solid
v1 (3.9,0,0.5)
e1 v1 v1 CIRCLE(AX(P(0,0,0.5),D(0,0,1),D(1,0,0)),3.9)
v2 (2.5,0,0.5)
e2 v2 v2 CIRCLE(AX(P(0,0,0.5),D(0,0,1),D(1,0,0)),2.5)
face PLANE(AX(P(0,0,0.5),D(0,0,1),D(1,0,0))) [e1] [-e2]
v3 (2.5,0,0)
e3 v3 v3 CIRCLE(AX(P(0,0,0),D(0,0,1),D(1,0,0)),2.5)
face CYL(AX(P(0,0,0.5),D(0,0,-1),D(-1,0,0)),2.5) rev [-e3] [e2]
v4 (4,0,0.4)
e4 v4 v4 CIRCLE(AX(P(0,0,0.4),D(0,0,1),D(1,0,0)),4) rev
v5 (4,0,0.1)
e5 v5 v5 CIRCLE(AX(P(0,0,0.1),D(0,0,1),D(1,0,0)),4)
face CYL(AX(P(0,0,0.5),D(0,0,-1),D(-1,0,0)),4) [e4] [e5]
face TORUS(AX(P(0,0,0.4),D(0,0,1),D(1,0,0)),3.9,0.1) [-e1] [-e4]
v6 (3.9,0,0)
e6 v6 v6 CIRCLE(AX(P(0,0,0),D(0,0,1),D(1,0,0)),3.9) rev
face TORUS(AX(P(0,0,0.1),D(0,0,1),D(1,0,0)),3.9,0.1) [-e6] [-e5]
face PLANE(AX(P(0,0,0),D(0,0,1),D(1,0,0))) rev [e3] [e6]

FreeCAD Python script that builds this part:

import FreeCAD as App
import Part
import Sketcher
from FreeCAD import Vector
Q = App.Units.Quantity


def edges_at(feature, points):
    """Names of the edges that pass closest to the given points."""
    edges = feature.Shape.Edges
    near = lambda p: min(range(len(edges)), key=lambda i: edges[i].distToShape(Part.Vertex(*p))[0])
    return sorted({f"Edge{near(p) + 1}" for p in points})

doc = App.newDocument("Part")
params = doc.addObject("Spreadsheet::Sheet", "Params")
for row, (alias, value) in enumerate([
    ("sketch1_diameter", "8 mm"),
    ("sketch1_diameter2", "5 mm"),
    ("pad1_length", "0.5 mm"),
    ("fillet_radius", "0.1 mm"),
], start=1):
    params.set(f"A{row}", alias)
    params.set(f"B{row}", "=" + value)
    params.setAlias(f"B{row}", alias)

body = doc.addObject("PartDesign::Body", "Body")

# Sketch on XY plane
sketch1 = body.newObject("Sketcher::SketchObject", "Sketch")
sketch1.AttachmentSupport = (doc.getObject("XY_Plane"), [""])
sketch1.MapMode = "FlatFace"
sketch1.addGeometry([
    Part.Circle(Vector(0, 0, 0), Vector(0, 0, 1), 4),
    Part.Circle(Vector(0, 0, 0), Vector(0, 0, 1), 2.5),
], False)
sketch1.addConstraint([
    Sketcher.Constraint("Coincident", 0, 3, -1, 1),
    Sketcher.Constraint("Coincident", 1, 3, -1, 1),
    Sketcher.Constraint("Diameter", 0, Q("8 mm")),
    Sketcher.Constraint("Diameter", 1, Q("5 mm")),
])
sketch1.setExpression("Constraints[2]", "Params.sketch1_diameter")
sketch1.setExpression("Constraints[3]", "Params.sketch1_diameter2")
pad1 = body.newObject("PartDesign::Pad", "Pad")
pad1.Profile = sketch1
pad1.setExpression("Length", "Params.pad1_length")
doc.recompute()

fillet = body.newObject("PartDesign::Fillet", "Fillet")
fillet.Base = (pad1, edges_at(pad1, [(-4, 0, 0), (-4, 0, 0.5)]))
fillet.setExpression("Radius", "Params.fillet_radius")

doc.recompute()
